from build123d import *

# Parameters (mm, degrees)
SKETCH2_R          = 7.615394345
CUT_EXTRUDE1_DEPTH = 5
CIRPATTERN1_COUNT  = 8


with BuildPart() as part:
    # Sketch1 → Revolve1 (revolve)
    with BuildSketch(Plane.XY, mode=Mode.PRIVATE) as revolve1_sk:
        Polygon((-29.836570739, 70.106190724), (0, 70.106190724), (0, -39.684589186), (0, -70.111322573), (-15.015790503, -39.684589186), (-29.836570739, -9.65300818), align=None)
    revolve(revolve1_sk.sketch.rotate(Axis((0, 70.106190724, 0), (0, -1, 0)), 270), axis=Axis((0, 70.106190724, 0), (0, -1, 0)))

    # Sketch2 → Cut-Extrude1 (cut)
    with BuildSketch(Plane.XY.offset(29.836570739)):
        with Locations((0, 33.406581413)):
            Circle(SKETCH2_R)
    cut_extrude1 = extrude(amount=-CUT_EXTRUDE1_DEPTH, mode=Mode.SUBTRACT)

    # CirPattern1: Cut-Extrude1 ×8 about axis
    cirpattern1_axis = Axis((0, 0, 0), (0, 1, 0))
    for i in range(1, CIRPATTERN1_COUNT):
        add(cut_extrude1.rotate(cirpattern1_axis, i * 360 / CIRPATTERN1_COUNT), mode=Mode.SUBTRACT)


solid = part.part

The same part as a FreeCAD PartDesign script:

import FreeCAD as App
import Part
import Sketcher
Q = App.Units.Quantity


def add_polygon(sketch, points):
    """Adds a closed chain of lines whose ends are joined by coincident constraints."""
    first, n = sketch.GeometryCount, len(points)
    for a, b in zip(points, points[1:] + points[:1]):
        sketch.addGeometry(Part.LineSegment(App.Vector(*a, 0), App.Vector(*b, 0)), False)
    for i in range(n):
        sketch.addConstraint(Sketcher.Constraint("Coincident", first + i, 2, first + (i + 1) % n, 1))

doc = App.newDocument("Part")
params = doc.addObject("Spreadsheet::Sheet", "Params")
for row, (alias, value) in enumerate([
    ("revolution_angle", "360 deg"),
    ("pocket1_length", "5 mm"),
], start=1):
    params.set(f"A{row}", alias)
    params.set(f"B{row}", "=" + value)
    params.setAlias(f"B{row}", alias)

body = doc.addObject("PartDesign::Body", "Body")

sketch1 = body.newObject("Sketcher::SketchObject", "Sketch")
sketch1.AttachmentSupport = (doc.getObject("XY_Plane"), [""])
sketch1.MapMode = "FlatFace"
add_polygon(sketch1, [(0, 70), (-30, 70), (-30, -10), (-15, -40), (0, -70)])
sketch1.addConstraint(Sketcher.Constraint("Horizontal", 0))
sketch1.addConstraint(Sketcher.Constraint("Vertical", 1))
sketch1.addConstraint(Sketcher.Constraint("Vertical", 4))
sketch1.addConstraint(Sketcher.Constraint("PointOnObject", 3, 2, -2))
sketch1.addConstraint(Sketcher.Constraint("Parallel", 2, 3))
sketch1.addConstraint(Sketcher.Constraint("DistanceY", 1, 2, 1, 1, Q("79.759199 mm")))
sketch1.addConstraint(Sketcher.Constraint("DistanceX", 0, 2, 0, 1, Q("29.836571 mm")))
sketch1.addConstraint(Sketcher.Constraint("Distance", 2, Q("33.489571 mm")))
sketch1.addConstraint(Sketcher.Constraint("DistanceY", 4, 1, 4, 2, Q("140.217513 mm")))
sketch1.addConstraint(Sketcher.Constraint("DistanceY", -1, 1, 0, 2, Q("70.106191 mm")))
revolution = body.newObject("PartDesign::Revolution", "Revolution")
revolution.Profile = sketch1
revolution.ReferenceAxis = (sketch1, ["V_Axis"])
revolution.setExpression("Angle", "Params.revolution_angle")

sketch2 = body.newObject("Sketcher::SketchObject", "Sketch001")
sketch2.AttachmentSupport = (doc.getObject("XY_Plane"), [""])
sketch2.MapMode = "FlatFace"
sketch2.AttachmentOffset = App.Placement(App.Vector(0, 0, 29.836571), App.Rotation())
sketch2.addGeometry(Part.Circle(App.Vector(0, 33, 0), App.Vector(0, 0, 1), 8), False)
sketch2.addConstraint(Sketcher.Constraint("PointOnObject", 0, 3, -2))
sketch2.addConstraint(Sketcher.Constraint("Diameter", 0, Q("15.230789 mm")))
sketch2.addConstraint(Sketcher.Constraint("DistanceY", -1, 1, 0, 3, Q("33.406581 mm")))
pocket1 = body.newObject("PartDesign::Pocket", "Pocket")
pocket1.Profile = sketch2
pocket1.setExpression("Length", "Params.pocket1_length")
doc.recompute()

polarpattern = body.newObject("PartDesign::PolarPattern", "PolarPattern")
polarpattern.Originals = [pocket1]
polarpattern.Axis = (doc.getObject("Y_Axis"), [""])
polarpattern.Angle = 360
polarpattern.Occurrences = 8
body.Tip = polarpattern

doc.recompute()
